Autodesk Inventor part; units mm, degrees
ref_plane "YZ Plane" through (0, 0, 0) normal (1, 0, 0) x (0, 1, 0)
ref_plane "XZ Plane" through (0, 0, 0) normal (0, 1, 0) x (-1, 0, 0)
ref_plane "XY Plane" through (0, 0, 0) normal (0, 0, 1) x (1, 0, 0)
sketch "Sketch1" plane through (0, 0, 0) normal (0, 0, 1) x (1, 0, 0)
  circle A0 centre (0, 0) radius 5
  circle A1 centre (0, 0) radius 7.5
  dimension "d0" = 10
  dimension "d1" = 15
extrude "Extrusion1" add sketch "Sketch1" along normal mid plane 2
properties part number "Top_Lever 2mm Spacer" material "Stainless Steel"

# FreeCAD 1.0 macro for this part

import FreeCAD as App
import Part
import Sketcher
Q = App.Units.Quantity

doc = App.newDocument("Part")
params = doc.addObject("Spreadsheet::Sheet", "Params")
for row, (alias, value) in enumerate([
    ("sketch1_diameter", "15 mm"),
    ("sketch1_diameter2", "10 mm"),
    ("pad1_length", "2 mm"),
], start=1):
    params.set(f"A{row}", alias)
    params.set(f"B{row}", "=" + value)
    params.setAlias(f"B{row}", alias)

body = doc.addObject("PartDesign::Body", "Body")

# Sketch on XY plane
sketch1 = body.newObject("Sketcher::SketchObject", "Sketch")
sketch1.AttachmentSupport = (doc.getObject("XY_Plane"), [""])
sketch1.MapMode = "FlatFace"
sketch1.addGeometry([
    Part.Circle(App.Vector(0, 0, 0), App.Vector(0, 0, 1), 8),
    Part.Circle(App.Vector(0, 0, 0), App.Vector(0, 0, 1), 5),
], False)
sketch1.addConstraint([
    Sketcher.Constraint("Coincident", 0, 3, -1, 1),
    Sketcher.Constraint("Coincident", 1, 3, -1, 1),
    Sketcher.Constraint("Diameter", 0, Q("15 mm")),
    Sketcher.Constraint("Diameter", 1, Q("10 mm")),
])
sketch1.setExpression("Constraints[2]", "Params.sketch1_diameter")
sketch1.setExpression("Constraints[3]", "Params.sketch1_diameter2")
pad1 = body.newObject("PartDesign::Pad", "Pad")
pad1.Profile = sketch1
pad1.setExpression("Length", "Params.pad1_length")
pad1.Midplane = True

doc.recompute()
